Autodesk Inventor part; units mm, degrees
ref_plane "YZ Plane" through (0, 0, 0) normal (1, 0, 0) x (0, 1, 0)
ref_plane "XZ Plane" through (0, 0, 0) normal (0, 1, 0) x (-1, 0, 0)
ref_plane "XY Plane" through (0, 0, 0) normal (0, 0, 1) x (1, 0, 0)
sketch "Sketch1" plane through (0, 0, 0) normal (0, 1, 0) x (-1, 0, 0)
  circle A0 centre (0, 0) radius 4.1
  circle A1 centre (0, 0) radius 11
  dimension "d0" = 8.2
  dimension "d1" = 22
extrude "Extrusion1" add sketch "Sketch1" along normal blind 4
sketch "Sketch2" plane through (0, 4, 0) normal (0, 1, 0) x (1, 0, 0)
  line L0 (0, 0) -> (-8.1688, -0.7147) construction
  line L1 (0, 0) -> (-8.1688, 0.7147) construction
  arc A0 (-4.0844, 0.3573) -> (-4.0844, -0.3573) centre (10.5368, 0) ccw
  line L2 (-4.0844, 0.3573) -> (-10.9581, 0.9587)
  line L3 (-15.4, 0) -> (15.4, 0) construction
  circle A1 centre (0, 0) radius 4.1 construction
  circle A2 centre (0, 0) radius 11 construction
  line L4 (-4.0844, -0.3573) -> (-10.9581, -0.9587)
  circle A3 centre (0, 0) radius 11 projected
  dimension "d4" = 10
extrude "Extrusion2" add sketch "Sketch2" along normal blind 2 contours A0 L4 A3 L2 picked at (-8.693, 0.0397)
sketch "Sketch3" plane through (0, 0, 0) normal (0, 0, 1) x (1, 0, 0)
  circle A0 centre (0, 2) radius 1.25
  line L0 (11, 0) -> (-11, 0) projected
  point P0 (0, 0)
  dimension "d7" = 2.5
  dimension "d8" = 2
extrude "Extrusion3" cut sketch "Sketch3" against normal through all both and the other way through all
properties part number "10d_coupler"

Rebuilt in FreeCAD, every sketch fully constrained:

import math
import FreeCAD as App
import Part
import Sketcher
from FreeCAD import Vector
Q = App.Units.Quantity

doc = App.newDocument("Part")
body = doc.addObject("PartDesign::Body", "Body")

# Sketch on XZ plane
sketch1 = body.newObject("Sketcher::SketchObject", "Sketch")
sketch1.AttachmentSupport = (doc.getObject("XZ_Plane"), [""])
sketch1.MapMode = "FlatFace"
sketch1.addGeometry(Part.Circle(Vector(0, 0, 0), Vector(0, 0, 1), 11), False)
sketch1.addGeometry(Part.Circle(Vector(0, 0, 0), Vector(0, 0, 1), 4.1), False)
sketch1.addConstraint(Sketcher.Constraint("Coincident", 0, 3, -1, 1))
sketch1.addConstraint(Sketcher.Constraint("Coincident", 1, 3, -1, 1))
sketch1.addConstraint(Sketcher.Constraint("Diameter", 0, 22.0))
sketch1.addConstraint(Sketcher.Constraint("Diameter", 1, 8.2))
pad1 = body.newObject("PartDesign::Pad", "Pad")
pad1.Profile = sketch1
pad1.Length = 4
pad1.Reversed = True

# Sketch on XZ plane
sketch2 = body.newObject("Sketcher::SketchObject", "Sketch001")
sketch2.AttachmentSupport = (doc.getObject("XZ_Plane"), [""])
sketch2.MapMode = "FlatFace"
sketch2.AttachmentOffset = App.Placement(Vector(0, 0, -4), App.Rotation())
sketch2.addGeometry(Part.ArcOfCircle(Part.Circle(Vector(10.5368, 0, 0), Vector(0, 0, 1), 14.625565), math.radians(178.600135), math.radians(181.399865)), False)
sketch2.addGeometry(Part.LineSegment(Vector(-4.0844, -0.3573, 0), Vector(-10.9581, -0.9587, 0)), False)
sketch2.addGeometry(Part.ArcOfCircle(Part.Circle(Vector(0, 0, 0), Vector(0, 0, 1), 11), math.radians(175.000049), math.radians(184.999951)), False)
sketch2.addGeometry(Part.LineSegment(Vector(-10.9581, 0.9587, 0), Vector(-4.0844, 0.3573, 0)), False)
sketch2.addConstraint(Sketcher.Constraint("Coincident", 0, 2, 1, 1))
sketch2.addConstraint(Sketcher.Constraint("Coincident", 1, 2, 2, 2))
sketch2.addConstraint(Sketcher.Constraint("Coincident", 2, 1, 3, 1))
sketch2.addConstraint(Sketcher.Constraint("Coincident", 3, 2, 0, 1))
sketch2.addConstraint(Sketcher.Constraint("Coincident", 2, 3, -1, 1))
sketch2.addConstraint(Sketcher.Constraint("Symmetric", 0, 2, 3, 2, -1))
sketch2.addConstraint(Sketcher.Constraint("Vertical", 1, 2, 2, 1))
sketch2.addConstraint(Sketcher.Constraint("Radius", 2, 11.0))
sketch2.addConstraint(Sketcher.Constraint("Angle", 1, Q("-174.9998 deg")))
sketch2.addConstraint(Sketcher.Constraint("Distance", 1, 6.9))
sketch2.addConstraint(Sketcher.Constraint("Radius", 0, 14.6256))
sketch2.addConstraint(Sketcher.Constraint("DistanceX", 1, 2, -1, 1, 10.958))
pad2 = body.newObject("PartDesign::Pad", "Pad001")
pad2.Profile = sketch2
pad2.Length = 2
pad2.Reversed = True

# Sketch on XY plane
sketch3 = body.newObject("Sketcher::SketchObject", "Sketch002")
sketch3.AttachmentSupport = (doc.getObject("XY_Plane"), [""])
sketch3.MapMode = "FlatFace"
sketch3.addGeometry(Part.Circle(Vector(0, 2, 0), Vector(0, 0, 1), 1.25), False)
sketch3.addConstraint(Sketcher.Constraint("PointOnObject", 0, 3, -2))
sketch3.addConstraint(Sketcher.Constraint("Diameter", 0, 2.5))
sketch3.addConstraint(Sketcher.Constraint("DistanceY", -1, 1, 0, 3, 2.0))
pocket1 = body.newObject("PartDesign::Pocket", "Pocket")
pocket1.Profile = sketch3
pocket1.Type = "ThroughAll"
pocket1.Midplane = True

doc.recompute()
